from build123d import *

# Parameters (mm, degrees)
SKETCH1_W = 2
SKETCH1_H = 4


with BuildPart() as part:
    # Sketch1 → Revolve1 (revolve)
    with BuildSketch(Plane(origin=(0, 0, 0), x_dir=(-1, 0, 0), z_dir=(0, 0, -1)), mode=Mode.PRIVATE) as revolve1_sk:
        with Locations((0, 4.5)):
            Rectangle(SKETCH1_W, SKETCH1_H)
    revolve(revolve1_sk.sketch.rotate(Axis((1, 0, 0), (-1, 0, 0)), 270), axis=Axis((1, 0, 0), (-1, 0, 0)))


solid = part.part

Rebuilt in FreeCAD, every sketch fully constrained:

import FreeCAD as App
import Part
import Sketcher

V = App.Vector

doc = App.newDocument("Part")
body = doc.addObject("PartDesign::Body", "Body")

sketch1 = doc.addObject("Sketcher::SketchObject", "Sketch")
body.addObject(sketch1)
sketch1.AttachmentSupport = (doc.XY_Plane, [""])
sketch1.MapMode = "FlatFace"
sketch1.addGeometry([
    Part.LineSegment(V(1, 6.5, 0), V(1, 2.5, 0)),
    Part.LineSegment(V(1, 2.5, 0), V(-1, 2.5, 0)),
    Part.LineSegment(V(-1, 2.5, 0), V(-1, 6.5, 0)),
    Part.LineSegment(V(-1, 6.5, 0), V(1, 6.5, 0)),
], False)
sketch1.addConstraint([
    Sketcher.Constraint("Coincident", 0, 2, 1, 1),
    Sketcher.Constraint("Coincident", 1, 2, 2, 1),
    Sketcher.Constraint("Coincident", 2, 2, 3, 1),
    Sketcher.Constraint("Coincident", 3, 2, 0, 1),
    Sketcher.Constraint("Vertical", 0),
    Sketcher.Constraint("Horizontal", 1),
    Sketcher.Constraint("Vertical", 2),
    Sketcher.Constraint("Horizontal", 3),
    Sketcher.Constraint("DistanceX", 1, 2, 1, 1, 2.0),
    Sketcher.Constraint("DistanceY", 0, 2, 0, 1, 4.0),
    Sketcher.Constraint("DistanceX", -1, 1, 0, 2, 1.0),
    Sketcher.Constraint("DistanceY", -1, 1, 0, 2, 2.5),
])
revolution = doc.addObject("PartDesign::Revolution", "Revolution")
body.addObject(revolution)
revolution.Profile = sketch1
revolution.ReferenceAxis = (sketch1, ["H_Axis"])
revolution.Angle = 360

doc.recompute()
